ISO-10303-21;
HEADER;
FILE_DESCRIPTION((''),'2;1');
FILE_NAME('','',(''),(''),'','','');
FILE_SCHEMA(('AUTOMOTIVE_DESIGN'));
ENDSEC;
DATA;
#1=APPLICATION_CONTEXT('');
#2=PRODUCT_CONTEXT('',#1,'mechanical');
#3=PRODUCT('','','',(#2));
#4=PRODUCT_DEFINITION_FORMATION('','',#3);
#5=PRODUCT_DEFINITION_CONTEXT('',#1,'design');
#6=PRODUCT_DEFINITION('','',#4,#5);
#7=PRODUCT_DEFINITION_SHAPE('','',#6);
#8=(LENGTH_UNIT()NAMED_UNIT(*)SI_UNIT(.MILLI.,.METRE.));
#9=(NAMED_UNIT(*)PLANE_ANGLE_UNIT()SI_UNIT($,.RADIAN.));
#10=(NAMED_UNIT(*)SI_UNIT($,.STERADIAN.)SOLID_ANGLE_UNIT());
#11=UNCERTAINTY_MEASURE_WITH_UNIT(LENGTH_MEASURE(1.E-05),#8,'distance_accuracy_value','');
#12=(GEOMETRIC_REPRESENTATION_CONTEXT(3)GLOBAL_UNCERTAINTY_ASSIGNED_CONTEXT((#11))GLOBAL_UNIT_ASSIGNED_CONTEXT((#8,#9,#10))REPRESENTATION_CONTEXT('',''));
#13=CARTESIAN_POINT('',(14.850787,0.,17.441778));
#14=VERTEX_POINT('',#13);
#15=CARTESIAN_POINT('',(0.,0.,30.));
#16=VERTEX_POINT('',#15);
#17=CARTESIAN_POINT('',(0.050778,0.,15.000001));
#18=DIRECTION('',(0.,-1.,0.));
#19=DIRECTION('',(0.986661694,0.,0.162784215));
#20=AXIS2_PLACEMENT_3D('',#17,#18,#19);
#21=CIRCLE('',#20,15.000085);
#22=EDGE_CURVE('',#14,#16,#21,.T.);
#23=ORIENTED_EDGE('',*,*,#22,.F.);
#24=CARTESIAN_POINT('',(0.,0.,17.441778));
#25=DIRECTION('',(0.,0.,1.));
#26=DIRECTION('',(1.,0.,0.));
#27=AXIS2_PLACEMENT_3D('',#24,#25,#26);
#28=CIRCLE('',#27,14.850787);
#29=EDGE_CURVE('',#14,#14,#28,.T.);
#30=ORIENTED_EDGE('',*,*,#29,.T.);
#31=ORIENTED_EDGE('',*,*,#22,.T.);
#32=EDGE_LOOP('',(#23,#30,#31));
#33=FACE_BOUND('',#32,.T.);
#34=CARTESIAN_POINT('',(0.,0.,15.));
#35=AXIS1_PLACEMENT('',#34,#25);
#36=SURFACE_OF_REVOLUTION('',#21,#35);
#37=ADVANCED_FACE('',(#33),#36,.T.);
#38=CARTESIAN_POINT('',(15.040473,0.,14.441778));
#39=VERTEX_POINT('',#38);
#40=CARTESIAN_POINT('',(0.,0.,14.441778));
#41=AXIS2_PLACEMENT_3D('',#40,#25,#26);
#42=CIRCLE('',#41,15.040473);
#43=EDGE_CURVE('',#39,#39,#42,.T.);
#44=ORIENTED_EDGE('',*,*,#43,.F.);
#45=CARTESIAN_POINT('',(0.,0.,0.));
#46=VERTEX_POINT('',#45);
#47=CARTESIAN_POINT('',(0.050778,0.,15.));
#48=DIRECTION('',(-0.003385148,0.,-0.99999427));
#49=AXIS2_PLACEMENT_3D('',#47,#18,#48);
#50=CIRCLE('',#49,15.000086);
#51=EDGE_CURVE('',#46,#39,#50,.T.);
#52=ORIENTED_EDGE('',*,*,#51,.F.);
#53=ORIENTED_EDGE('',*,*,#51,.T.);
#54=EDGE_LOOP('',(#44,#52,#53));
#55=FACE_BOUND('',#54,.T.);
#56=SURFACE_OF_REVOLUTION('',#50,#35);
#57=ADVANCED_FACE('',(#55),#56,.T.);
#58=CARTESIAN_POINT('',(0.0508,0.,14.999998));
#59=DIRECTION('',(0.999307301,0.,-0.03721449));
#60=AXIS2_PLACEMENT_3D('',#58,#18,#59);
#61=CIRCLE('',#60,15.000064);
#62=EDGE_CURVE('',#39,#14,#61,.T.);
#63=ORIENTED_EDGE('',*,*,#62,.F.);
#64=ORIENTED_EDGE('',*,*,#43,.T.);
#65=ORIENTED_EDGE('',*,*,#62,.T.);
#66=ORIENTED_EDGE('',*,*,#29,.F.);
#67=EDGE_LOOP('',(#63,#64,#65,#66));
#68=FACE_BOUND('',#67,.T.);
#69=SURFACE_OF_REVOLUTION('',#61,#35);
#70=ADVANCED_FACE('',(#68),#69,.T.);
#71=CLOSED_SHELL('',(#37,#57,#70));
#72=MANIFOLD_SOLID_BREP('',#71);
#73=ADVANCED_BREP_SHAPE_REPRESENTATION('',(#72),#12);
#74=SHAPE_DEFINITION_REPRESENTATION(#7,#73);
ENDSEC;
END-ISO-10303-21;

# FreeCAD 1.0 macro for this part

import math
import FreeCAD as App
import Part
import Sketcher
from FreeCAD import Vector
Q = App.Units.Quantity

doc = App.newDocument("Part")
body = doc.addObject("PartDesign::Body", "Body")

sketch1 = doc.addObject("Sketcher::SketchObject", "Sketch")
body.addObject(sketch1)
sketch1.AttachmentSupport = (doc.XZ_Plane, [""])
sketch1.MapMode = "FlatFace"
sketch1.addGeometry([
    Part.ArcOfCircle(Part.Circle(Vector(0.0508, 14.999998, 0), Vector(0, 0, 1), 15.000064), math.radians(-2.132726), math.radians(9.368565)),
    Part.ArcOfCircle(Part.Circle(Vector(0.050778, 15.000001, 0), Vector(0, 0, 1), 15.000085), math.radians(9.368539), math.radians(90.193956)),
    Part.LineSegment(Vector(0, 30, 0), Vector(0, 0, 0)),
    Part.ArcOfCircle(Part.Circle(Vector(0.050778, 15, 0), Vector(0, 0, 1), 15.000086), math.radians(-90.193955), math.radians(-2.132732)),
], False)
sketch1.addConstraint([
    Sketcher.Constraint("Coincident", 0, 2, 1, 1),
    Sketcher.Constraint("Coincident", 1, 2, 2, 1),
    Sketcher.Constraint("Coincident", 2, 2, 3, 1),
    Sketcher.Constraint("Coincident", 3, 2, 0, 1),
    Sketcher.Constraint("Vertical", 2),
    Sketcher.Constraint("Coincident", 2, 2, -1, 1),
    Sketcher.Constraint("Coincident", 3, 3, 1, 3),
    Sketcher.Constraint("DistanceY", 2, 2, 2, 1, Q("30 mm")),
    Sketcher.Constraint("DistanceY", -1, 1, 1, 3, Q("15.000001 mm")),
    Sketcher.Constraint("DistanceY", 3, 2, 0, 2, Q("3 mm")),
    Sketcher.Constraint("Radius", 0, Q("15.000064 mm")),
    Sketcher.Constraint("DistanceX", -1, 1, 0, 3, Q("0.0508 mm")),
    Sketcher.Constraint("DistanceY", 0, 3, 0, 2, Q("2.44178 mm")),
])
revolution = doc.addObject("PartDesign::Revolution", "Revolution")
body.addObject(revolution)
revolution.Profile = sketch1
revolution.ReferenceAxis = (sketch1, ["V_Axis"])
revolution.Angle = 360

doc.recompute()
